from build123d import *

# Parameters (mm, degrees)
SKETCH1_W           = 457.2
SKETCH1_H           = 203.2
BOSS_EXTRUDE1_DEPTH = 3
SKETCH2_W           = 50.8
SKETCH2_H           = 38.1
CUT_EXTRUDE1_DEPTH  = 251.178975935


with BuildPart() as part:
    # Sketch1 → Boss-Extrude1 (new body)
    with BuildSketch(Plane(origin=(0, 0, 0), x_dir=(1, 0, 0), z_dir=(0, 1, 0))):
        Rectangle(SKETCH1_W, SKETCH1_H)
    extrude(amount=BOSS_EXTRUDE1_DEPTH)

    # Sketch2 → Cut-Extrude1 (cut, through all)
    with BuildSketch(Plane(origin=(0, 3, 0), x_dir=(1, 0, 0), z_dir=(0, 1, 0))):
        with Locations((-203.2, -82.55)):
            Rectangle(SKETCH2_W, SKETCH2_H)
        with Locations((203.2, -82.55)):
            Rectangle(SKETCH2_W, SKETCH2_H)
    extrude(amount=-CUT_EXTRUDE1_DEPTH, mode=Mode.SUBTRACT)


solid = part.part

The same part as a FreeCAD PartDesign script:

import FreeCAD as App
import Part
import Sketcher
from FreeCAD import Vector
Q = App.Units.Quantity

doc = App.newDocument("Part")
body = doc.addObject("PartDesign::Body", "Body")

# Sketch on XZ plane
sketch1 = doc.addObject("Sketcher::SketchObject", "Sketch")
body.addObject(sketch1)
sketch1.AttachmentSupport = (doc.XZ_Plane, [""])
sketch1.MapMode = "FlatFace"
sketch1.addGeometry(Part.LineSegment(Vector(-228.6, -101.6, 0), Vector(-228.6, 101.6, 0)), False)
sketch1.addGeometry(Part.LineSegment(Vector(-228.6, 101.6, 0), Vector(228.6, 101.6, 0)), False)
sketch1.addGeometry(Part.LineSegment(Vector(228.6, 101.6, 0), Vector(228.6, -101.6, 0)), False)
sketch1.addGeometry(Part.LineSegment(Vector(228.6, -101.6, 0), Vector(-228.6, -101.6, 0)), False)
sketch1.addConstraint(Sketcher.Constraint("Coincident", 0, 2, 1, 1))
sketch1.addConstraint(Sketcher.Constraint("Coincident", 1, 2, 2, 1))
sketch1.addConstraint(Sketcher.Constraint("Coincident", 2, 2, 3, 1))
sketch1.addConstraint(Sketcher.Constraint("Coincident", 3, 2, 0, 1))
sketch1.addConstraint(Sketcher.Constraint("Vertical", 0))
sketch1.addConstraint(Sketcher.Constraint("Horizontal", 1))
sketch1.addConstraint(Sketcher.Constraint("Vertical", 2))
sketch1.addConstraint(Sketcher.Constraint("Horizontal", 3))
sketch1.addConstraint(Sketcher.Constraint("Symmetric", 0, 2, 2, 2, -1, 1))
sketch1.addConstraint(Sketcher.Constraint("DistanceX", 1, 1, 1, 2, Q("18 in")))
sketch1.addConstraint(Sketcher.Constraint("DistanceY", 0, 1, 0, 2, Q("8 in")))
pad1 = doc.addObject("PartDesign::Pad", "Pad")
body.addObject(pad1)
pad1.Profile = sketch1
pad1.Length = 3
pad1.Reversed = True

# Sketch on XZ plane
sketch2 = doc.addObject("Sketcher::SketchObject", "Sketch001")
body.addObject(sketch2)
sketch2.AttachmentSupport = (doc.XZ_Plane, [""])
sketch2.MapMode = "FlatFace"
sketch2.AttachmentOffset = App.Placement(Vector(0, 0, -3), App.Rotation())
sketch2.addGeometry(Part.LineSegment(Vector(-228.6, 63.5, 0), Vector(-228.6, 101.6, 0)), False)
sketch2.addGeometry(Part.LineSegment(Vector(-228.6, 101.6, 0), Vector(-177.8, 101.6, 0)), False)
sketch2.addGeometry(Part.LineSegment(Vector(-177.8, 101.6, 0), Vector(-177.8, 63.5, 0)), False)
sketch2.addGeometry(Part.LineSegment(Vector(-177.8, 63.5, 0), Vector(-228.6, 63.5, 0)), False)
sketch2.addGeometry(Part.LineSegment(Vector(177.8, 63.5, 0), Vector(177.8, 101.6, 0)), False)
sketch2.addGeometry(Part.LineSegment(Vector(177.8, 101.6, 0), Vector(228.6, 101.6, 0)), False)
sketch2.addGeometry(Part.LineSegment(Vector(228.6, 101.6, 0), Vector(228.6, 63.5, 0)), False)
sketch2.addGeometry(Part.LineSegment(Vector(228.6, 63.5, 0), Vector(177.8, 63.5, 0)), False)
sketch2.addConstraint(Sketcher.Constraint("Coincident", 0, 2, 1, 1))
sketch2.addConstraint(Sketcher.Constraint("Coincident", 1, 2, 2, 1))
sketch2.addConstraint(Sketcher.Constraint("Coincident", 2, 2, 3, 1))
sketch2.addConstraint(Sketcher.Constraint("Coincident", 3, 2, 0, 1))
sketch2.addConstraint(Sketcher.Constraint("Coincident", 4, 2, 5, 1))
sketch2.addConstraint(Sketcher.Constraint("Coincident", 5, 2, 6, 1))
sketch2.addConstraint(Sketcher.Constraint("Coincident", 6, 2, 7, 1))
sketch2.addConstraint(Sketcher.Constraint("Coincident", 7, 2, 4, 1))
sketch2.addConstraint(Sketcher.Constraint("Vertical", 0))
sketch2.addConstraint(Sketcher.Constraint("Horizontal", 1))
sketch2.addConstraint(Sketcher.Constraint("Vertical", 2))
sketch2.addConstraint(Sketcher.Constraint("Horizontal", 3))
sketch2.addConstraint(Sketcher.Constraint("Vertical", 4))
sketch2.addConstraint(Sketcher.Constraint("Horizontal", 5))
sketch2.addConstraint(Sketcher.Constraint("Vertical", 6))
sketch2.addConstraint(Sketcher.Constraint("Horizontal", 7))
sketch2.addConstraint(Sketcher.Constraint("Symmetric", 1, 2, 4, 2, -2))
sketch2.addConstraint(Sketcher.Constraint("Symmetric", 3, 2, 6, 2, -2))
sketch2.addConstraint(Sketcher.Constraint("DistanceX", 1, 1, 1, 2, Q("2 in")))
sketch2.addConstraint(Sketcher.Constraint("DistanceY", 0, 1, 0, 2, Q("1.5 in")))
sketch2.addConstraint(Sketcher.Constraint("DistanceX", 0, 2, -1, 1, Q("9 in")))
sketch2.addConstraint(Sketcher.Constraint("DistanceY", -1, 1, 0, 2, Q("4 in")))
pocket1 = doc.addObject("PartDesign::Pocket", "Pocket")
body.addObject(pocket1)
pocket1.Profile = sketch2
pocket1.Type = "ThroughAll"
pocket1.Reversed = True

doc.recompute()
